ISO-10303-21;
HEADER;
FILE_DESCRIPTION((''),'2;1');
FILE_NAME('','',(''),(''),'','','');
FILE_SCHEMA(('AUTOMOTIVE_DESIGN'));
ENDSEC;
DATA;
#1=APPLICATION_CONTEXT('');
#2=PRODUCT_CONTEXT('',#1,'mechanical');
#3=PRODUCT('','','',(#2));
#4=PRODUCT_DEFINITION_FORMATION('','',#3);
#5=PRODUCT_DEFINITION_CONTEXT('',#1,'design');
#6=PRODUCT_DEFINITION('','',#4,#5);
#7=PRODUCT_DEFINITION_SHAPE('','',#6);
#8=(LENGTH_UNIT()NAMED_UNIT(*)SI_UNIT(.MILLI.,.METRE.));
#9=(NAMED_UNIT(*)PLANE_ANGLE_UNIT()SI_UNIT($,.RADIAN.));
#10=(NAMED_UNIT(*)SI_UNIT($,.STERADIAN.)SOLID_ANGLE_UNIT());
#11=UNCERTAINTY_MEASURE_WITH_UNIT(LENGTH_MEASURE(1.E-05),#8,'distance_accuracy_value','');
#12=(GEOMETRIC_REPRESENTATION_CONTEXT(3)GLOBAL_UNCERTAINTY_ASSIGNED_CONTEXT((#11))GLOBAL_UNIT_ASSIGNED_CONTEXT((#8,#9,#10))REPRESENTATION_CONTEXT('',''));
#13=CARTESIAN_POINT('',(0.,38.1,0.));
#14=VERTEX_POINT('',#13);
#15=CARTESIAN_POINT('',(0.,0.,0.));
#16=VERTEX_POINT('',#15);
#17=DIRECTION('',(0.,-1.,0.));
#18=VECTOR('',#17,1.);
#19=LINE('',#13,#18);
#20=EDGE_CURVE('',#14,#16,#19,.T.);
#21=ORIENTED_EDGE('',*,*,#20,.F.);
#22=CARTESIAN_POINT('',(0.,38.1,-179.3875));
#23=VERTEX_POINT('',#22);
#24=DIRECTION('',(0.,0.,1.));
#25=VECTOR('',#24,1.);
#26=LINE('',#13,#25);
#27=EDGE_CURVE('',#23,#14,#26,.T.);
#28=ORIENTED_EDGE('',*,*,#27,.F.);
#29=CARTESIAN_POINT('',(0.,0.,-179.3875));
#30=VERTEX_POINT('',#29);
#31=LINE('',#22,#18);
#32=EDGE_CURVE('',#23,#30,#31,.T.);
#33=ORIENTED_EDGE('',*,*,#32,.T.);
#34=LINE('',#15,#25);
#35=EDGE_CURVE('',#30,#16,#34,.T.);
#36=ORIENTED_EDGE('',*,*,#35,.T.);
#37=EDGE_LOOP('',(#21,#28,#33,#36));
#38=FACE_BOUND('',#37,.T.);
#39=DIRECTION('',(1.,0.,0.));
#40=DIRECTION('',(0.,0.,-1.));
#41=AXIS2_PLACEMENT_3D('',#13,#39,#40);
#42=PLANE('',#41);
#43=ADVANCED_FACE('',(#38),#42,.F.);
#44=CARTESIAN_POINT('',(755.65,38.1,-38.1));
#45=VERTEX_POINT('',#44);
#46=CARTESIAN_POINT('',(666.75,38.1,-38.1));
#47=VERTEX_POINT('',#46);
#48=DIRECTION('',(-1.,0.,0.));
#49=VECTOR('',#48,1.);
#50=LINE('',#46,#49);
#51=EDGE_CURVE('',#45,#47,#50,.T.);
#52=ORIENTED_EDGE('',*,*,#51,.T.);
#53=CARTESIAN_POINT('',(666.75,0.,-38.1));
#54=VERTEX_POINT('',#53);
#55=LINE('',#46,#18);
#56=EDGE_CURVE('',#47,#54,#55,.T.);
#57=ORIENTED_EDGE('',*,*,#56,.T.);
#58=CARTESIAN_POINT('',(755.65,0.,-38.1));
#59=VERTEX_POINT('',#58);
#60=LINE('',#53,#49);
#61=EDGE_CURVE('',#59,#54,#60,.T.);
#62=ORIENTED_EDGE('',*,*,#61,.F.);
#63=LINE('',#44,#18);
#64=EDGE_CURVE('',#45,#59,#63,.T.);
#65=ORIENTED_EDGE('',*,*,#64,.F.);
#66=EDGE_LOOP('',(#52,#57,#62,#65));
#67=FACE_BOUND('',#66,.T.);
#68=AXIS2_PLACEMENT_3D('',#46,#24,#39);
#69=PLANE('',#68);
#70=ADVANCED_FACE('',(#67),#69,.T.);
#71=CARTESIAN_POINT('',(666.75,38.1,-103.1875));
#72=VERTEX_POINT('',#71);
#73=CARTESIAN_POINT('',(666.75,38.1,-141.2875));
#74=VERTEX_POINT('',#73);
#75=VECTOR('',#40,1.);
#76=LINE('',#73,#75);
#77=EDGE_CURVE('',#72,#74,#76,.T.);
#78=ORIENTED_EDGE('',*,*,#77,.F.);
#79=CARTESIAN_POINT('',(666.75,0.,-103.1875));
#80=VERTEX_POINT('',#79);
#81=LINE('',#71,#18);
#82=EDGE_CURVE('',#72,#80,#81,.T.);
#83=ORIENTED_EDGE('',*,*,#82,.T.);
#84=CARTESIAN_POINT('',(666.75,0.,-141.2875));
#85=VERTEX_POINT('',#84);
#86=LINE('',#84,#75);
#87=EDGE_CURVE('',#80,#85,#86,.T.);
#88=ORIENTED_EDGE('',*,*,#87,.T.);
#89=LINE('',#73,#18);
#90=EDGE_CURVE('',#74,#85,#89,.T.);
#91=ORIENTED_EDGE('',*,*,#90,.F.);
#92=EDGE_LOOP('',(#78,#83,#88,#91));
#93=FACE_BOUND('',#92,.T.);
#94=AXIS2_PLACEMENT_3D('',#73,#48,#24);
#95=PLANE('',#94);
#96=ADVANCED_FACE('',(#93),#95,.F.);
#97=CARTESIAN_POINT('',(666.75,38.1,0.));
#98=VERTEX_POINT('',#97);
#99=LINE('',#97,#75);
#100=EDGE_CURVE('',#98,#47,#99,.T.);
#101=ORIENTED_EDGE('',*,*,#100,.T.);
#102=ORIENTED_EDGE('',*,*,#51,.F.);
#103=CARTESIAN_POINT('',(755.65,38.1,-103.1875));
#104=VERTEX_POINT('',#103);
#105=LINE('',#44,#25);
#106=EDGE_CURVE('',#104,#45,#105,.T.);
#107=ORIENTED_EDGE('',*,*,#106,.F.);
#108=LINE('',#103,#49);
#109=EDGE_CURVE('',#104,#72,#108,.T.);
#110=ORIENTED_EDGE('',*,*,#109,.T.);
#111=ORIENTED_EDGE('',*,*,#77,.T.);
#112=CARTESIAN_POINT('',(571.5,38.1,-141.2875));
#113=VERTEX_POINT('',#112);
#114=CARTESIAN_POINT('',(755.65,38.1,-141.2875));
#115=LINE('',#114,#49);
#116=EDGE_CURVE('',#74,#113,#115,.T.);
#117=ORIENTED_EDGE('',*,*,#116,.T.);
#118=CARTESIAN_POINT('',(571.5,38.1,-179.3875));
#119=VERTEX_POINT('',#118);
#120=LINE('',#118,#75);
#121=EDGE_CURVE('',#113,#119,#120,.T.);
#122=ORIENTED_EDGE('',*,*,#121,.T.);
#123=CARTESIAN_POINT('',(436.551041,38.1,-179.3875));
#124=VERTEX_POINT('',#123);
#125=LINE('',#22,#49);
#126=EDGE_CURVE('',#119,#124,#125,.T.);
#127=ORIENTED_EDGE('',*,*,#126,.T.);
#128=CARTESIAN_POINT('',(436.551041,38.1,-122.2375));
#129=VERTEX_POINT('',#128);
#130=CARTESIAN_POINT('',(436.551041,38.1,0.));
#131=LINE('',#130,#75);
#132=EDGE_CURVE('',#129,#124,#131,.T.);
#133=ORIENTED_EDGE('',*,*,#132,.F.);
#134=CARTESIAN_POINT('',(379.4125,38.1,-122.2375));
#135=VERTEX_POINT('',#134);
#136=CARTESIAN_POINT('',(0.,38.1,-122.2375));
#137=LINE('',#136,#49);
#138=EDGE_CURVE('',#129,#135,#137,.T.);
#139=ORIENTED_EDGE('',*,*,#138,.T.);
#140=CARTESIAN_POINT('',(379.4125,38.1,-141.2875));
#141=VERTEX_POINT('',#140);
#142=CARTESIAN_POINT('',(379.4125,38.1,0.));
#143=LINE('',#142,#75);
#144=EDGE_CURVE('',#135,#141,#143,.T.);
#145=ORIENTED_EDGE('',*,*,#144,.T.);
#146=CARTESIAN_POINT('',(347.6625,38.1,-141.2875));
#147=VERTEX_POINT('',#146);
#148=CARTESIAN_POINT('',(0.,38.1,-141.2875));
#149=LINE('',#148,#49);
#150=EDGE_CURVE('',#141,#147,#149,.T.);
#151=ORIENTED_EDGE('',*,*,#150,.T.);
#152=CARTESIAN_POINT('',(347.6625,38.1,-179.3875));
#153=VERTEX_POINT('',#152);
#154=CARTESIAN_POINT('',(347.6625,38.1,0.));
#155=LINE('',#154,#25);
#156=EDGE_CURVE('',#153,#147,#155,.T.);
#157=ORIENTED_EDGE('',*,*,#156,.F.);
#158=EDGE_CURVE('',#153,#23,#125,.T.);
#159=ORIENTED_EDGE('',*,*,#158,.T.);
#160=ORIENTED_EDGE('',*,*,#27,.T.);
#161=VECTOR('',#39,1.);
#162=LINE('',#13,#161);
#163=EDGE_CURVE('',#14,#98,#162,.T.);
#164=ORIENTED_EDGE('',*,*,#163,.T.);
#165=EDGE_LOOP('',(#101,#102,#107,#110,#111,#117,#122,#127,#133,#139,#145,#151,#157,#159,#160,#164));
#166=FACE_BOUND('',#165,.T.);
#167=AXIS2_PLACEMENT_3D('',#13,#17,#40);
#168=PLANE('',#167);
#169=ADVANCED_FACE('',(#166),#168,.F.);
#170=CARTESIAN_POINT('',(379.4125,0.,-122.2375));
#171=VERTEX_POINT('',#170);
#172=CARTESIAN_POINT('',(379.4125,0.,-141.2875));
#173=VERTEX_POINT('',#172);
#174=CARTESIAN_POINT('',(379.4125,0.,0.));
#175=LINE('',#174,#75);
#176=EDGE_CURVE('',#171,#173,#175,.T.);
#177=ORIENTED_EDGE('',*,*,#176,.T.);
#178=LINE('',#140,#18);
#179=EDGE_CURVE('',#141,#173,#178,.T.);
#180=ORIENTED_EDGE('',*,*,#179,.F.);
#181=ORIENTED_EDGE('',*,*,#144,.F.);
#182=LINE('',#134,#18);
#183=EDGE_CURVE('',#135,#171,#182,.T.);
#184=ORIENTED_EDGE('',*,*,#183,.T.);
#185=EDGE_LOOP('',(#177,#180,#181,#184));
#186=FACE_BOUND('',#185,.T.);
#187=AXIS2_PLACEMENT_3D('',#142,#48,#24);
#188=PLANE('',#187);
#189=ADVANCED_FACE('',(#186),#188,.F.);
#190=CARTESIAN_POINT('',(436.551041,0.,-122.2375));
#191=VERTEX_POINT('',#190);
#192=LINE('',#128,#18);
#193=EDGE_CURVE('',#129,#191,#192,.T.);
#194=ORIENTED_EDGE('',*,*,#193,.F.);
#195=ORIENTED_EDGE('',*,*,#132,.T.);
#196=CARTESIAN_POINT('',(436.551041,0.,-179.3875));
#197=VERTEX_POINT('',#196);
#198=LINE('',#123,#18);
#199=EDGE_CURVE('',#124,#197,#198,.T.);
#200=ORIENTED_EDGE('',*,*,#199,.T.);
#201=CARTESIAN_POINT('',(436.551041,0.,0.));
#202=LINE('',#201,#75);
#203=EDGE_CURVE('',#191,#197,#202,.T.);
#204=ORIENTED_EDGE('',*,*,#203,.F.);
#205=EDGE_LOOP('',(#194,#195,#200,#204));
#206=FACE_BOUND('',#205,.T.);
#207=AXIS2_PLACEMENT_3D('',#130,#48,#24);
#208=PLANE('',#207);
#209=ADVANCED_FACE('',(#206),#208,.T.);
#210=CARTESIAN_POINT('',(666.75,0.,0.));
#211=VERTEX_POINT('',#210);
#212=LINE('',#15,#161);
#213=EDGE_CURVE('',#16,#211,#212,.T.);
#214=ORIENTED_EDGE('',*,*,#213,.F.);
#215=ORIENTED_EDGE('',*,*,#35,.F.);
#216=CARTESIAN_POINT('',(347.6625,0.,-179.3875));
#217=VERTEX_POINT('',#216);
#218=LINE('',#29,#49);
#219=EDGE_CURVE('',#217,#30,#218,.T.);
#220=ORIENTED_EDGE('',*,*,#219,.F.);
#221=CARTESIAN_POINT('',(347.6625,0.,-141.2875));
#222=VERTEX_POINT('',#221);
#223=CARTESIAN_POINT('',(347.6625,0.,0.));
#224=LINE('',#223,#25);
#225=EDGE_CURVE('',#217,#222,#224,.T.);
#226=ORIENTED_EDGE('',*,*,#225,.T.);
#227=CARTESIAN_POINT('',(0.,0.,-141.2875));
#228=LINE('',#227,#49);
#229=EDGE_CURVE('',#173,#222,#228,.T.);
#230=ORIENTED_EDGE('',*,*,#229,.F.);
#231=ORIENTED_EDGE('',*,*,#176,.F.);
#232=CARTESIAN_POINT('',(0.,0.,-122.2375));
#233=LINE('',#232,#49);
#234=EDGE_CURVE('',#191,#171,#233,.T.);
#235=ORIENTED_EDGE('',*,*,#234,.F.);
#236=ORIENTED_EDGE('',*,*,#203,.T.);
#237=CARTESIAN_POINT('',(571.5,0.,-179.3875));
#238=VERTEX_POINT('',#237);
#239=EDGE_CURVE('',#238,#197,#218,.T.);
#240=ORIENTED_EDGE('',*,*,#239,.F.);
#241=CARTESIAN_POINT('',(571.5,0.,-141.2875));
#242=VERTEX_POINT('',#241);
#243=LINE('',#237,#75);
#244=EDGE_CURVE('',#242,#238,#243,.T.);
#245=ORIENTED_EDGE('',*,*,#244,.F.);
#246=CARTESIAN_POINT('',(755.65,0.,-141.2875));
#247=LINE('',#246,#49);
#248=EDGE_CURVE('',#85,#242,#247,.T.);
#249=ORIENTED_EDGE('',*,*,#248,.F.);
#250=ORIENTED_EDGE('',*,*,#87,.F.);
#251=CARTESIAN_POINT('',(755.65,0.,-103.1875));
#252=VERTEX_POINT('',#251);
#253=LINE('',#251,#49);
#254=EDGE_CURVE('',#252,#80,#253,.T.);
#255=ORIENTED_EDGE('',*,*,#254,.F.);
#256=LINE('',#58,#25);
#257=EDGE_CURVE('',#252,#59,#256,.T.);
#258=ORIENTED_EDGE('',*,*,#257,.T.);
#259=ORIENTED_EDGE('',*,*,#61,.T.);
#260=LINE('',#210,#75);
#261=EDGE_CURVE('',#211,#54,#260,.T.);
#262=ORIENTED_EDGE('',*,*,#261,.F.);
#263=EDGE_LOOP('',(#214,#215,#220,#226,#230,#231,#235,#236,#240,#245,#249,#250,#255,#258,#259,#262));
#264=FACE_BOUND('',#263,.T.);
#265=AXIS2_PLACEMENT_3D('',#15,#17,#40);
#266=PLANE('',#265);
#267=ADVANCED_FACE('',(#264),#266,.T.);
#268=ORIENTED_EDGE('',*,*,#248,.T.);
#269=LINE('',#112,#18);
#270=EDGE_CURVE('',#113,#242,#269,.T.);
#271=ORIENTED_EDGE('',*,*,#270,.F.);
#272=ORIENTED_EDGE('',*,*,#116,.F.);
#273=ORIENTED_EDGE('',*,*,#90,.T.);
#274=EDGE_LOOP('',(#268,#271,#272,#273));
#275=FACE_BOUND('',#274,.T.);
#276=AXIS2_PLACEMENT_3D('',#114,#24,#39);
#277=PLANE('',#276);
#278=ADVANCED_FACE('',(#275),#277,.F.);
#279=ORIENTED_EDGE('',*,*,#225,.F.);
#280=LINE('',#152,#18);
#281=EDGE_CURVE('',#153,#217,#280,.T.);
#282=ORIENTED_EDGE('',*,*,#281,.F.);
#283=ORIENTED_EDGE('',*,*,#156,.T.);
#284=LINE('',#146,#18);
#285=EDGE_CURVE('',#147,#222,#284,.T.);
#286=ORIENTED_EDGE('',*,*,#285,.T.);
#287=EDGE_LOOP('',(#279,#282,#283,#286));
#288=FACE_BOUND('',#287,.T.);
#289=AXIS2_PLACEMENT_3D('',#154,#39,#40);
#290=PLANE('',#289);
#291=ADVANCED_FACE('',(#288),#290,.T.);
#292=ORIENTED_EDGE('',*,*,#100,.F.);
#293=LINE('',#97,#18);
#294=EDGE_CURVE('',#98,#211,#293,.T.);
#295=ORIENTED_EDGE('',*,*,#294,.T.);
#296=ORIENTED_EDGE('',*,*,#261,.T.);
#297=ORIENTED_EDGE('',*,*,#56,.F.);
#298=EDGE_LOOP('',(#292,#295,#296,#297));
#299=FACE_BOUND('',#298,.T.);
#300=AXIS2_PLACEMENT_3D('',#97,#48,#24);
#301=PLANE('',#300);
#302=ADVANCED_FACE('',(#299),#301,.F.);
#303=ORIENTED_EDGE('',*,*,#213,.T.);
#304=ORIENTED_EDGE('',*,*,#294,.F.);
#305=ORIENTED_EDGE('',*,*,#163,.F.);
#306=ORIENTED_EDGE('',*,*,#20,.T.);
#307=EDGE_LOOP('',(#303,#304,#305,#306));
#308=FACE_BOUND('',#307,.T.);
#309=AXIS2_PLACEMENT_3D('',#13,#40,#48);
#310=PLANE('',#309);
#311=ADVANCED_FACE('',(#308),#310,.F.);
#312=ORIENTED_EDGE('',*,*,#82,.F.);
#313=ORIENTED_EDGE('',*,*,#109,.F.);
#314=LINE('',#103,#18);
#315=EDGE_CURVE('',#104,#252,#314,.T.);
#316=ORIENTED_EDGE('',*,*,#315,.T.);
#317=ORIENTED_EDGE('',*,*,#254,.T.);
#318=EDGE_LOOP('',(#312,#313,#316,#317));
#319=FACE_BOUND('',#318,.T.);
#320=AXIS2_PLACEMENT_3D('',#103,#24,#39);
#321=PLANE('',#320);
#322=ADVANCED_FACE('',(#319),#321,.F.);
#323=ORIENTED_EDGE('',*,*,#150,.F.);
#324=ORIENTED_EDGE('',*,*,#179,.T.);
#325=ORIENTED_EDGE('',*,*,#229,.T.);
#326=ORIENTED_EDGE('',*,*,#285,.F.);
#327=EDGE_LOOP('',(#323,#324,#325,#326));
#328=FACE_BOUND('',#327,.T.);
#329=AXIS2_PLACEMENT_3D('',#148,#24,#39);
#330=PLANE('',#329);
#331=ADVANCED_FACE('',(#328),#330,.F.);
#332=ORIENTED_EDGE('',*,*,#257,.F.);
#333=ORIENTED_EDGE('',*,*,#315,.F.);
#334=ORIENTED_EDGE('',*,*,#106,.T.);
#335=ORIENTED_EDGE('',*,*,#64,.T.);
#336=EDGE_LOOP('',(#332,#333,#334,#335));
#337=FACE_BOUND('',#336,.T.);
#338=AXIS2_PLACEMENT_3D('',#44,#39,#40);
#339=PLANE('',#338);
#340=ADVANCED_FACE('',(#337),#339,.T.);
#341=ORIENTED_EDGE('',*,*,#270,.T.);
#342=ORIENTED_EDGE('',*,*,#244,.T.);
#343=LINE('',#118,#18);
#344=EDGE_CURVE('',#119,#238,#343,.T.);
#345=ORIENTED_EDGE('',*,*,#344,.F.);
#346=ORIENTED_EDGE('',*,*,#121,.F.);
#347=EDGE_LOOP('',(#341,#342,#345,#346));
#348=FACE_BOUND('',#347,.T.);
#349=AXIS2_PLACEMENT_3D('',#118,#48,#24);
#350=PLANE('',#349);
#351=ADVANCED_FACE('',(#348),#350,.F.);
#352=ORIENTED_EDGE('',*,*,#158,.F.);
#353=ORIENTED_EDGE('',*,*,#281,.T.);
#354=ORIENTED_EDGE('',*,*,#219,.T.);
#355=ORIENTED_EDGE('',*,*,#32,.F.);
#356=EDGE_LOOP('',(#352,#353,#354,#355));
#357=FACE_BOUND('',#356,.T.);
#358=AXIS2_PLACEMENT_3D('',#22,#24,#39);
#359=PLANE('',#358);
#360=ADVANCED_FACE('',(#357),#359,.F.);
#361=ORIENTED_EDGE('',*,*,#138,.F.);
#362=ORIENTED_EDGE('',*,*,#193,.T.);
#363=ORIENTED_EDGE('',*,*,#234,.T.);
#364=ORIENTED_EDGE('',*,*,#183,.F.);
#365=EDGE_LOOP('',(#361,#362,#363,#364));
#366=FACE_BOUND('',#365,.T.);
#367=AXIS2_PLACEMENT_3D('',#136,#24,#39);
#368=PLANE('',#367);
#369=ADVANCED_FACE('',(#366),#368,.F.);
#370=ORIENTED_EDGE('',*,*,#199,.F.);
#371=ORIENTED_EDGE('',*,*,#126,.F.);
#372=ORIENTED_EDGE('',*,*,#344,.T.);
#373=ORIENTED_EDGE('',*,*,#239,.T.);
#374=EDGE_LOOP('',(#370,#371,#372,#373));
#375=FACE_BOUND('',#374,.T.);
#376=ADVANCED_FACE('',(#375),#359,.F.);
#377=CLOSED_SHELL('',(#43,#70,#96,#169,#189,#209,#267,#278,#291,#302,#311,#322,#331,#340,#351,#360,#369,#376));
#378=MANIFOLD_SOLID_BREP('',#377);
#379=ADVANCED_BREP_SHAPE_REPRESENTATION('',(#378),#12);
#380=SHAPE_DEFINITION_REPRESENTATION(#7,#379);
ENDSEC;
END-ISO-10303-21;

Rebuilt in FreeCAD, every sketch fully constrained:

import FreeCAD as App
import Part
import Sketcher
Q = App.Units.Quantity


def add_polygon(sketch, points):
    """Adds a closed chain of lines whose ends are joined by coincident constraints."""
    first, n = sketch.GeometryCount, len(points)
    for a, b in zip(points, points[1:] + points[:1]):
        sketch.addGeometry(Part.LineSegment(App.Vector(*a, 0), App.Vector(*b, 0)), False)
    for i in range(n):
        sketch.addConstraint(Sketcher.Constraint("Coincident", first + i, 2, first + (i + 1) % n, 1))

doc = App.newDocument("Part")
body = doc.addObject("PartDesign::Body", "Body")

# Sketch on XZ plane
sketch1 = body.newObject("Sketcher::SketchObject", "Sketch")
sketch1.AttachmentSupport = (doc.getObject("XZ_Plane"), [""])
sketch1.MapMode = "FlatFace"
add_polygon(sketch1, [(0, -179.3875), (0, 0), (666.75, 0), (666.75, -179.3875)])  # lines 0-3
sketch1.addConstraint([
    Sketcher.Constraint("Vertical", 0),
    Sketcher.Constraint("Horizontal", 1),
    Sketcher.Constraint("Vertical", 2),
    Sketcher.Constraint("Horizontal", 3),
    Sketcher.Constraint("Coincident", 0, 2, -1, 1),
    Sketcher.Constraint("DistanceX", 1, 1, 1, 2, Q("26.25 in")),
    Sketcher.Constraint("DistanceY", 0, 1, 0, 2, Q("7.0625 in")),
])
pad1 = body.newObject("PartDesign::Pad", "Pad")
pad1.Profile = sketch1
pad1.Length = Q("1.5 in")
pad1.Reversed = True

# Sketch on XZ plane
sketch2 = body.newObject("Sketcher::SketchObject", "Sketch001")
sketch2.AttachmentSupport = (doc.getObject("XZ_Plane"), [""])
sketch2.MapMode = "FlatFace"
add_polygon(sketch2, [(666.75, -38.1), (666.75, -179.3875), (755.65, -179.3875), (755.65, -38.1)])  # lines 0-3
sketch2.addConstraint([
    Sketcher.Constraint("Vertical", 0),
    Sketcher.Constraint("Horizontal", 1),
    Sketcher.Constraint("Vertical", 2),
    Sketcher.Constraint("Horizontal", 3),
    Sketcher.Constraint("DistanceX", 1, 1, 1, 2, Q("3.5 in")),
    Sketcher.Constraint("DistanceY", 2, 2, -1, 1, Q("1.5 in")),
    Sketcher.Constraint("DistanceY", 0, 2, 0, 1, Q("5.5625 in")),
    Sketcher.Constraint("DistanceX", -1, 1, 0, 2, Q("26.25 in")),
])
pad2 = body.newObject("PartDesign::Pad", "Pad001")
pad2.Profile = sketch2
pad2.Length = Q("1.5 in")
pad2.Reversed = True

# Sketch on XZ plane
sketch3 = body.newObject("Sketcher::SketchObject", "Sketch002")
sketch3.AttachmentSupport = (doc.getObject("XZ_Plane"), [""])
sketch3.MapMode = "FlatFace"
add_polygon(sketch3, [(571.5, -141.2875), (571.5, -179.3875), (755.65, -179.3875), (755.65, -141.2875)])  # lines 0-3
sketch3.addConstraint([
    Sketcher.Constraint("Vertical", 0),
    Sketcher.Constraint("Horizontal", 1),
    Sketcher.Constraint("Vertical", 2),
    Sketcher.Constraint("Horizontal", 3),
    Sketcher.Constraint("DistanceY", 0, 2, 0, 1, Q("1.5 in")),
    Sketcher.Constraint("DistanceX", 1, 1, 1, 2, Q("7.25 in")),
    Sketcher.Constraint("DistanceX", -1, 1, 0, 2, Q("22.5 in")),
    Sketcher.Constraint("DistanceY", 0, 2, -1, 1, Q("7.0625 in")),
])
pocket1 = body.newObject("PartDesign::Pocket", "Pocket")
pocket1.Profile = sketch3
pocket1.Type = "ThroughAll"

# Sketch on XZ plane
sketch4 = body.newObject("Sketcher::SketchObject", "Sketch003")
sketch4.AttachmentSupport = (doc.getObject("XZ_Plane"), [""])
sketch4.MapMode = "FlatFace"
add_polygon(sketch4, [(436.551041, -122.2375), (379.4125, -122.2375), (379.4125, -141.2875), (347.6625, -141.2875), (347.6625, -179.3875), (436.551041, -179.3875)])  # lines 0-5
sketch4.addConstraint([
    Sketcher.Constraint("Horizontal", 0),
    Sketcher.Constraint("Vertical", 1),
    Sketcher.Constraint("Horizontal", 2),
    Sketcher.Constraint("Vertical", 3),
    Sketcher.Constraint("Horizontal", 4),
    Sketcher.Constraint("Vertical", 5),
    Sketcher.Constraint("DistanceY", 3, 2, 3, 1, Q("1.5 in")),
    Sketcher.Constraint("DistanceX", 2, 2, 2, 1, Q("1.25 in")),
    Sketcher.Constraint("DistanceY", 1, 2, 1, 1, Q("0.75 in")),
    Sketcher.Constraint("DistanceX", -1, 1, 0, 2, Q("14.9375 in")),
    Sketcher.Constraint("DistanceY", 0, 2, -1, 1, Q("4.8125 in")),
    Sketcher.Constraint("DistanceX", 0, 2, 0, 1, 57.138541),
])
pocket2 = body.newObject("PartDesign::Pocket", "Pocket001")
pocket2.Profile = sketch4
pocket2.Type = "ThroughAll"

# Sketch on XZ plane
sketch5 = body.newObject("Sketcher::SketchObject", "Sketch004")
sketch5.AttachmentSupport = (doc.getObject("XZ_Plane"), [""])
sketch5.MapMode = "FlatFace"
add_polygon(sketch5, [(666.75, -103.1875), (666.75, -141.2875), (755.65, -141.2875), (755.65, -103.1875)])  # lines 0-3
sketch5.addConstraint([
    Sketcher.Constraint("Vertical", 0),
    Sketcher.Constraint("Horizontal", 1),
    Sketcher.Constraint("Vertical", 2),
    Sketcher.Constraint("Horizontal", 3),
    Sketcher.Constraint("DistanceX", 1, 1, 1, 2, Q("3.5 in")),
    Sketcher.Constraint("DistanceY", 0, 2, 0, 1, Q("1.5 in")),
    Sketcher.Constraint("DistanceX", -1, 1, 0, 2, Q("26.25 in")),
    Sketcher.Constraint("DistanceY", 0, 2, -1, 1, Q("5.5625 in")),
])
pocket3 = body.newObject("PartDesign::Pocket", "Pocket002")
pocket3.Profile = sketch5
pocket3.Type = "ThroughAll"

doc.recompute()
